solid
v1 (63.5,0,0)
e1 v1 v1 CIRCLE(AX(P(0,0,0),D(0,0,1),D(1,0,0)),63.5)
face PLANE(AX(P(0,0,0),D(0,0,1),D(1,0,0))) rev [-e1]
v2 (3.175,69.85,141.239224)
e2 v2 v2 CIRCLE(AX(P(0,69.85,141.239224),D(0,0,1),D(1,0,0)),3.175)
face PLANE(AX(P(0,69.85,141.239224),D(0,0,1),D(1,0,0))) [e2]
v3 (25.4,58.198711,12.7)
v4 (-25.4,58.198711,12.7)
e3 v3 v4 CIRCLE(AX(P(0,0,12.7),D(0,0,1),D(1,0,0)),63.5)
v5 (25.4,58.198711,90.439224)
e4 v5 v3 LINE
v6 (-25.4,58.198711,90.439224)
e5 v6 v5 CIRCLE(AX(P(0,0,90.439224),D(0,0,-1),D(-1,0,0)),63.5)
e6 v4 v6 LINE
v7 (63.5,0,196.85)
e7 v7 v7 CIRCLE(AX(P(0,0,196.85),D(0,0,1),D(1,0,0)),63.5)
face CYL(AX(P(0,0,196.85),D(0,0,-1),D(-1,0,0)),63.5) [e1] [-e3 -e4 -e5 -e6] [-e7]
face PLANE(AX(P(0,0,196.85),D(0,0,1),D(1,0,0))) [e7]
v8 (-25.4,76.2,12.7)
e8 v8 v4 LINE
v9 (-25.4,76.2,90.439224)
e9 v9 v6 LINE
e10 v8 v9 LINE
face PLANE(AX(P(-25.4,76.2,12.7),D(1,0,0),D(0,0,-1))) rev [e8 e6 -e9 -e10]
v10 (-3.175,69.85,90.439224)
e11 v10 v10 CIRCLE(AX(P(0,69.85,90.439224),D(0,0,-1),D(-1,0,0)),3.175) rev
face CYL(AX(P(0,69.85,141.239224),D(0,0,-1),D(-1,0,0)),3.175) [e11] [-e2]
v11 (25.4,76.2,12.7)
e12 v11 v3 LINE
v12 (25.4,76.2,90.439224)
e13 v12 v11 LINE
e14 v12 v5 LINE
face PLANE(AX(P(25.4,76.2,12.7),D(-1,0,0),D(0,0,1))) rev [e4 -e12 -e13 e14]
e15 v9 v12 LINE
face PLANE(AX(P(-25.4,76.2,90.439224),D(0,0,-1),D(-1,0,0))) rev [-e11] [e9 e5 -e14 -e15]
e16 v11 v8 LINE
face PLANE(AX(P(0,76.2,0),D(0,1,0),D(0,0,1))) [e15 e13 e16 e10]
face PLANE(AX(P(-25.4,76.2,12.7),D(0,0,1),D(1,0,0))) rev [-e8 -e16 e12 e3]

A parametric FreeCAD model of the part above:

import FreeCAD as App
import Part
import Sketcher

V = App.Vector
Q = App.Units.Quantity


def add_polygon(sketch, points):
    """Adds a closed chain of lines whose ends are joined by coincident constraints."""
    first, n = sketch.GeometryCount, len(points)
    for a, b in zip(points, points[1:] + points[:1]):
        sketch.addGeometry(Part.LineSegment(App.Vector(*a, 0), App.Vector(*b, 0)), False)
    for i in range(n):
        sketch.addConstraint(Sketcher.Constraint("Coincident", first + i, 2, first + (i + 1) % n, 1))

doc = App.newDocument("Part")
params = doc.addObject("Spreadsheet::Sheet", "Params")
for row, (alias, value) in enumerate([
    ("sketch1_diameter", "5 in"),
    ("pad1_length", "7.75 in"),
    ("sketch2_width", "2 in"),
    ("pad2_length", "1 in"),
    ("sketch3_diameter", "0.25 in"),
    ("pad3_length", "2 in"),
], start=1):
    params.set(f"A{row}", alias)
    params.set(f"B{row}", "=" + value)
    params.setAlias(f"B{row}", alias)

body = doc.addObject("PartDesign::Body", "Body")

# Sketch on XY plane
sketch1 = body.newObject("Sketcher::SketchObject", "Sketch")
sketch1.AttachmentSupport = (doc.getObject("XY_Plane"), [""])
sketch1.MapMode = "FlatFace"
sketch1.addGeometry(Part.Circle(V(0, 0, 0), V(0, 0, 1), 64), False)
sketch1.addConstraint([
    Sketcher.Constraint("Coincident", 0, 3, -1, 1),
    Sketcher.Constraint("Diameter", 0, Q("5 in")),
])
sketch1.setExpression("Constraints[1]", "Params.sketch1_diameter")
pad1 = body.newObject("PartDesign::Pad", "Pad")
pad1.Profile = sketch1
pad1.setExpression("Length", "Params.pad1_length")

# Sketch on XZ plane
sketch2 = body.newObject("Sketcher::SketchObject", "Sketch001")
sketch2.AttachmentSupport = (doc.getObject("XZ_Plane"), [""])
sketch2.MapMode = "FlatFace"
sketch2.AttachmentOffset = App.Placement(V(0, 0, -2 * 25.4), App.Rotation())
add_polygon(sketch2, [(-25, 13), (-25, 90), (25, 90), (25, 13)])  # lines 0-3
sketch2.addConstraint([
    Sketcher.Constraint("Vertical", 0),
    Sketcher.Constraint("Horizontal", 1),
    Sketcher.Constraint("Vertical", 2),
    Sketcher.Constraint("Horizontal", 3),
    Sketcher.Constraint("DistanceX", 1, 1, 1, 2, Q("2 in")),
    Sketcher.Constraint("DistanceX", 0, 2, -1, 1, Q("1 in")),
    Sketcher.Constraint("DistanceY", -1, 1, 2, 2, Q("0.5 in")),
    Sketcher.Constraint("DistanceY", 0, 1, 0, 2, 77.739224),
])
sketch2.setExpression("Constraints[8]", "Params.sketch2_width")
pad2 = body.newObject("PartDesign::Pad", "Pad001")
pad2.Profile = sketch2
pad2.setExpression("Length", "Params.pad2_length")
pad2.Reversed = True

# Sketch on XY plane
sketch3 = body.newObject("Sketcher::SketchObject", "Sketch002")
sketch3.AttachmentSupport = (doc.getObject("XY_Plane"), [""])
sketch3.MapMode = "FlatFace"
sketch3.AttachmentOffset = App.Placement(V(0, 0, 90.439224), App.Rotation())
sketch3.addGeometry(Part.Circle(V(0, 69.8, 0), V(0, 0, 1), 3.2), False)
sketch3.addConstraint([
    Sketcher.Constraint("PointOnObject", 0, 3, -2),
    Sketcher.Constraint("Diameter", 0, Q("0.25 in")),
    Sketcher.Constraint("DistanceY", -1, 1, 0, 3, Q("2.75 in")),
])
sketch3.setExpression("Constraints[1]", "Params.sketch3_diameter")
pad3 = body.newObject("PartDesign::Pad", "Pad002")
pad3.Profile = sketch3
pad3.setExpression("Length", "Params.pad3_length")

doc.recompute()
